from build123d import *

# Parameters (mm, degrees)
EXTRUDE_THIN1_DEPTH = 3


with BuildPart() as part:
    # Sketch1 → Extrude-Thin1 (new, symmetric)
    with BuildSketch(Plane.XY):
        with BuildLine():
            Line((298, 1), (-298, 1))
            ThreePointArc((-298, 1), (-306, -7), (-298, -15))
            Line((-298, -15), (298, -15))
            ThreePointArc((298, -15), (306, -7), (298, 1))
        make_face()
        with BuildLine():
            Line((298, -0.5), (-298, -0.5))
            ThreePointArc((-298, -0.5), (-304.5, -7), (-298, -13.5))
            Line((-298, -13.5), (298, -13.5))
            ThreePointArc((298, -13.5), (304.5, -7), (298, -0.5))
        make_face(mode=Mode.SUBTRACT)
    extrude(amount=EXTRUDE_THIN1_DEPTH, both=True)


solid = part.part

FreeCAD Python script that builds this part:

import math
import FreeCAD as App
import Part
import Sketcher
Q = App.Units.Quantity

doc = App.newDocument("Part")
params = doc.addObject("Spreadsheet::Sheet", "Params")
for row, (alias, value) in enumerate([
    ("sketch1_radius", "8 mm"),
    ("sketch1_radius2", "6.5 mm"),
    ("sketch1_width", "596 mm"),
    ("pad1_length", "6 mm"),
], start=1):
    params.set(f"A{row}", alias)
    params.set(f"B{row}", "=" + value)
    params.setAlias(f"B{row}", alias)

body = doc.addObject("PartDesign::Body", "Body")

sketch1 = doc.addObject("Sketcher::SketchObject", "Sketch")
body.addObject(sketch1)
sketch1.AttachmentSupport = (doc.XY_Plane, [""])
sketch1.MapMode = "FlatFace"
sketch1.addGeometry(Part.LineSegment(App.Vector(298, 1, 0), App.Vector(-298, 1, 0)), False)
sketch1.addGeometry(Part.ArcOfCircle(Part.Circle(App.Vector(-298, -7, 0), App.Vector(0, 0, 1), 8), math.radians(90), math.radians(270)), False)
sketch1.addGeometry(Part.LineSegment(App.Vector(-298, -15, 0), App.Vector(298, -15, 0)), False)
sketch1.addGeometry(Part.ArcOfCircle(Part.Circle(App.Vector(298, -7, 0), App.Vector(0, 0, 1), 8), math.radians(-90), math.radians(90)), False)
sketch1.addGeometry(Part.LineSegment(App.Vector(-298, 0, 0), App.Vector(298, 0, 0)), False)
sketch1.addGeometry(Part.ArcOfCircle(Part.Circle(App.Vector(298, -7, 0), App.Vector(0, 0, 1), 6), math.radians(-90), math.radians(90)), False)
sketch1.addGeometry(Part.LineSegment(App.Vector(298, -14, 0), App.Vector(-298, -14, 0)), False)
sketch1.addGeometry(Part.ArcOfCircle(Part.Circle(App.Vector(-298, -7, 0), App.Vector(0, 0, 1), 6), math.radians(90), math.radians(270)), False)
sketch1.addConstraint(Sketcher.Constraint("Tangent", 0, 2, 1, 1))
sketch1.addConstraint(Sketcher.Constraint("Tangent", 1, 2, 2, 1))
sketch1.addConstraint(Sketcher.Constraint("Tangent", 2, 2, 3, 1))
sketch1.addConstraint(Sketcher.Constraint("Tangent", 3, 2, 0, 1))
sketch1.addConstraint(Sketcher.Constraint("Tangent", 4, 2, 5, 2))
sketch1.addConstraint(Sketcher.Constraint("Tangent", 5, 1, 6, 1))
sketch1.addConstraint(Sketcher.Constraint("Tangent", 6, 2, 7, 2))
sketch1.addConstraint(Sketcher.Constraint("Tangent", 7, 1, 4, 1))
sketch1.addConstraint(Sketcher.Constraint("Horizontal", 0))
sketch1.addConstraint(Sketcher.Constraint("Horizontal", 2))
sketch1.addConstraint(Sketcher.Constraint("Horizontal", 4))
sketch1.addConstraint(Sketcher.Constraint("Horizontal", 6))
sketch1.addConstraint(Sketcher.Constraint("Coincident", 5, 3, 3, 3))
sketch1.addConstraint(Sketcher.Constraint("Vertical", 7, 3, 0, 2))
sketch1.addConstraint(Sketcher.Constraint("Radius", 1, Q("8 mm")))
sketch1.addConstraint(Sketcher.Constraint("Radius", 5, Q("6.5 mm")))
sketch1.addConstraint(Sketcher.Constraint("DistanceX", 0, 2, 0, 1, Q("596 mm")))
sketch1.addConstraint(Sketcher.Constraint("DistanceX", 1, 3, -1, 1, Q("298 mm")))
sketch1.addConstraint(Sketcher.Constraint("DistanceY", 1, 3, -1, 1, Q("7 mm")))
sketch1.setExpression("Constraints[14]", "Params.sketch1_radius")
sketch1.setExpression("Constraints[15]", "Params.sketch1_radius2")
sketch1.setExpression("Constraints[16]", "Params.sketch1_width")
pad1 = doc.addObject("PartDesign::Pad", "Pad")
body.addObject(pad1)
pad1.Profile = sketch1
pad1.setExpression("Length", "Params.pad1_length")
pad1.Midplane = True

doc.recompute()
